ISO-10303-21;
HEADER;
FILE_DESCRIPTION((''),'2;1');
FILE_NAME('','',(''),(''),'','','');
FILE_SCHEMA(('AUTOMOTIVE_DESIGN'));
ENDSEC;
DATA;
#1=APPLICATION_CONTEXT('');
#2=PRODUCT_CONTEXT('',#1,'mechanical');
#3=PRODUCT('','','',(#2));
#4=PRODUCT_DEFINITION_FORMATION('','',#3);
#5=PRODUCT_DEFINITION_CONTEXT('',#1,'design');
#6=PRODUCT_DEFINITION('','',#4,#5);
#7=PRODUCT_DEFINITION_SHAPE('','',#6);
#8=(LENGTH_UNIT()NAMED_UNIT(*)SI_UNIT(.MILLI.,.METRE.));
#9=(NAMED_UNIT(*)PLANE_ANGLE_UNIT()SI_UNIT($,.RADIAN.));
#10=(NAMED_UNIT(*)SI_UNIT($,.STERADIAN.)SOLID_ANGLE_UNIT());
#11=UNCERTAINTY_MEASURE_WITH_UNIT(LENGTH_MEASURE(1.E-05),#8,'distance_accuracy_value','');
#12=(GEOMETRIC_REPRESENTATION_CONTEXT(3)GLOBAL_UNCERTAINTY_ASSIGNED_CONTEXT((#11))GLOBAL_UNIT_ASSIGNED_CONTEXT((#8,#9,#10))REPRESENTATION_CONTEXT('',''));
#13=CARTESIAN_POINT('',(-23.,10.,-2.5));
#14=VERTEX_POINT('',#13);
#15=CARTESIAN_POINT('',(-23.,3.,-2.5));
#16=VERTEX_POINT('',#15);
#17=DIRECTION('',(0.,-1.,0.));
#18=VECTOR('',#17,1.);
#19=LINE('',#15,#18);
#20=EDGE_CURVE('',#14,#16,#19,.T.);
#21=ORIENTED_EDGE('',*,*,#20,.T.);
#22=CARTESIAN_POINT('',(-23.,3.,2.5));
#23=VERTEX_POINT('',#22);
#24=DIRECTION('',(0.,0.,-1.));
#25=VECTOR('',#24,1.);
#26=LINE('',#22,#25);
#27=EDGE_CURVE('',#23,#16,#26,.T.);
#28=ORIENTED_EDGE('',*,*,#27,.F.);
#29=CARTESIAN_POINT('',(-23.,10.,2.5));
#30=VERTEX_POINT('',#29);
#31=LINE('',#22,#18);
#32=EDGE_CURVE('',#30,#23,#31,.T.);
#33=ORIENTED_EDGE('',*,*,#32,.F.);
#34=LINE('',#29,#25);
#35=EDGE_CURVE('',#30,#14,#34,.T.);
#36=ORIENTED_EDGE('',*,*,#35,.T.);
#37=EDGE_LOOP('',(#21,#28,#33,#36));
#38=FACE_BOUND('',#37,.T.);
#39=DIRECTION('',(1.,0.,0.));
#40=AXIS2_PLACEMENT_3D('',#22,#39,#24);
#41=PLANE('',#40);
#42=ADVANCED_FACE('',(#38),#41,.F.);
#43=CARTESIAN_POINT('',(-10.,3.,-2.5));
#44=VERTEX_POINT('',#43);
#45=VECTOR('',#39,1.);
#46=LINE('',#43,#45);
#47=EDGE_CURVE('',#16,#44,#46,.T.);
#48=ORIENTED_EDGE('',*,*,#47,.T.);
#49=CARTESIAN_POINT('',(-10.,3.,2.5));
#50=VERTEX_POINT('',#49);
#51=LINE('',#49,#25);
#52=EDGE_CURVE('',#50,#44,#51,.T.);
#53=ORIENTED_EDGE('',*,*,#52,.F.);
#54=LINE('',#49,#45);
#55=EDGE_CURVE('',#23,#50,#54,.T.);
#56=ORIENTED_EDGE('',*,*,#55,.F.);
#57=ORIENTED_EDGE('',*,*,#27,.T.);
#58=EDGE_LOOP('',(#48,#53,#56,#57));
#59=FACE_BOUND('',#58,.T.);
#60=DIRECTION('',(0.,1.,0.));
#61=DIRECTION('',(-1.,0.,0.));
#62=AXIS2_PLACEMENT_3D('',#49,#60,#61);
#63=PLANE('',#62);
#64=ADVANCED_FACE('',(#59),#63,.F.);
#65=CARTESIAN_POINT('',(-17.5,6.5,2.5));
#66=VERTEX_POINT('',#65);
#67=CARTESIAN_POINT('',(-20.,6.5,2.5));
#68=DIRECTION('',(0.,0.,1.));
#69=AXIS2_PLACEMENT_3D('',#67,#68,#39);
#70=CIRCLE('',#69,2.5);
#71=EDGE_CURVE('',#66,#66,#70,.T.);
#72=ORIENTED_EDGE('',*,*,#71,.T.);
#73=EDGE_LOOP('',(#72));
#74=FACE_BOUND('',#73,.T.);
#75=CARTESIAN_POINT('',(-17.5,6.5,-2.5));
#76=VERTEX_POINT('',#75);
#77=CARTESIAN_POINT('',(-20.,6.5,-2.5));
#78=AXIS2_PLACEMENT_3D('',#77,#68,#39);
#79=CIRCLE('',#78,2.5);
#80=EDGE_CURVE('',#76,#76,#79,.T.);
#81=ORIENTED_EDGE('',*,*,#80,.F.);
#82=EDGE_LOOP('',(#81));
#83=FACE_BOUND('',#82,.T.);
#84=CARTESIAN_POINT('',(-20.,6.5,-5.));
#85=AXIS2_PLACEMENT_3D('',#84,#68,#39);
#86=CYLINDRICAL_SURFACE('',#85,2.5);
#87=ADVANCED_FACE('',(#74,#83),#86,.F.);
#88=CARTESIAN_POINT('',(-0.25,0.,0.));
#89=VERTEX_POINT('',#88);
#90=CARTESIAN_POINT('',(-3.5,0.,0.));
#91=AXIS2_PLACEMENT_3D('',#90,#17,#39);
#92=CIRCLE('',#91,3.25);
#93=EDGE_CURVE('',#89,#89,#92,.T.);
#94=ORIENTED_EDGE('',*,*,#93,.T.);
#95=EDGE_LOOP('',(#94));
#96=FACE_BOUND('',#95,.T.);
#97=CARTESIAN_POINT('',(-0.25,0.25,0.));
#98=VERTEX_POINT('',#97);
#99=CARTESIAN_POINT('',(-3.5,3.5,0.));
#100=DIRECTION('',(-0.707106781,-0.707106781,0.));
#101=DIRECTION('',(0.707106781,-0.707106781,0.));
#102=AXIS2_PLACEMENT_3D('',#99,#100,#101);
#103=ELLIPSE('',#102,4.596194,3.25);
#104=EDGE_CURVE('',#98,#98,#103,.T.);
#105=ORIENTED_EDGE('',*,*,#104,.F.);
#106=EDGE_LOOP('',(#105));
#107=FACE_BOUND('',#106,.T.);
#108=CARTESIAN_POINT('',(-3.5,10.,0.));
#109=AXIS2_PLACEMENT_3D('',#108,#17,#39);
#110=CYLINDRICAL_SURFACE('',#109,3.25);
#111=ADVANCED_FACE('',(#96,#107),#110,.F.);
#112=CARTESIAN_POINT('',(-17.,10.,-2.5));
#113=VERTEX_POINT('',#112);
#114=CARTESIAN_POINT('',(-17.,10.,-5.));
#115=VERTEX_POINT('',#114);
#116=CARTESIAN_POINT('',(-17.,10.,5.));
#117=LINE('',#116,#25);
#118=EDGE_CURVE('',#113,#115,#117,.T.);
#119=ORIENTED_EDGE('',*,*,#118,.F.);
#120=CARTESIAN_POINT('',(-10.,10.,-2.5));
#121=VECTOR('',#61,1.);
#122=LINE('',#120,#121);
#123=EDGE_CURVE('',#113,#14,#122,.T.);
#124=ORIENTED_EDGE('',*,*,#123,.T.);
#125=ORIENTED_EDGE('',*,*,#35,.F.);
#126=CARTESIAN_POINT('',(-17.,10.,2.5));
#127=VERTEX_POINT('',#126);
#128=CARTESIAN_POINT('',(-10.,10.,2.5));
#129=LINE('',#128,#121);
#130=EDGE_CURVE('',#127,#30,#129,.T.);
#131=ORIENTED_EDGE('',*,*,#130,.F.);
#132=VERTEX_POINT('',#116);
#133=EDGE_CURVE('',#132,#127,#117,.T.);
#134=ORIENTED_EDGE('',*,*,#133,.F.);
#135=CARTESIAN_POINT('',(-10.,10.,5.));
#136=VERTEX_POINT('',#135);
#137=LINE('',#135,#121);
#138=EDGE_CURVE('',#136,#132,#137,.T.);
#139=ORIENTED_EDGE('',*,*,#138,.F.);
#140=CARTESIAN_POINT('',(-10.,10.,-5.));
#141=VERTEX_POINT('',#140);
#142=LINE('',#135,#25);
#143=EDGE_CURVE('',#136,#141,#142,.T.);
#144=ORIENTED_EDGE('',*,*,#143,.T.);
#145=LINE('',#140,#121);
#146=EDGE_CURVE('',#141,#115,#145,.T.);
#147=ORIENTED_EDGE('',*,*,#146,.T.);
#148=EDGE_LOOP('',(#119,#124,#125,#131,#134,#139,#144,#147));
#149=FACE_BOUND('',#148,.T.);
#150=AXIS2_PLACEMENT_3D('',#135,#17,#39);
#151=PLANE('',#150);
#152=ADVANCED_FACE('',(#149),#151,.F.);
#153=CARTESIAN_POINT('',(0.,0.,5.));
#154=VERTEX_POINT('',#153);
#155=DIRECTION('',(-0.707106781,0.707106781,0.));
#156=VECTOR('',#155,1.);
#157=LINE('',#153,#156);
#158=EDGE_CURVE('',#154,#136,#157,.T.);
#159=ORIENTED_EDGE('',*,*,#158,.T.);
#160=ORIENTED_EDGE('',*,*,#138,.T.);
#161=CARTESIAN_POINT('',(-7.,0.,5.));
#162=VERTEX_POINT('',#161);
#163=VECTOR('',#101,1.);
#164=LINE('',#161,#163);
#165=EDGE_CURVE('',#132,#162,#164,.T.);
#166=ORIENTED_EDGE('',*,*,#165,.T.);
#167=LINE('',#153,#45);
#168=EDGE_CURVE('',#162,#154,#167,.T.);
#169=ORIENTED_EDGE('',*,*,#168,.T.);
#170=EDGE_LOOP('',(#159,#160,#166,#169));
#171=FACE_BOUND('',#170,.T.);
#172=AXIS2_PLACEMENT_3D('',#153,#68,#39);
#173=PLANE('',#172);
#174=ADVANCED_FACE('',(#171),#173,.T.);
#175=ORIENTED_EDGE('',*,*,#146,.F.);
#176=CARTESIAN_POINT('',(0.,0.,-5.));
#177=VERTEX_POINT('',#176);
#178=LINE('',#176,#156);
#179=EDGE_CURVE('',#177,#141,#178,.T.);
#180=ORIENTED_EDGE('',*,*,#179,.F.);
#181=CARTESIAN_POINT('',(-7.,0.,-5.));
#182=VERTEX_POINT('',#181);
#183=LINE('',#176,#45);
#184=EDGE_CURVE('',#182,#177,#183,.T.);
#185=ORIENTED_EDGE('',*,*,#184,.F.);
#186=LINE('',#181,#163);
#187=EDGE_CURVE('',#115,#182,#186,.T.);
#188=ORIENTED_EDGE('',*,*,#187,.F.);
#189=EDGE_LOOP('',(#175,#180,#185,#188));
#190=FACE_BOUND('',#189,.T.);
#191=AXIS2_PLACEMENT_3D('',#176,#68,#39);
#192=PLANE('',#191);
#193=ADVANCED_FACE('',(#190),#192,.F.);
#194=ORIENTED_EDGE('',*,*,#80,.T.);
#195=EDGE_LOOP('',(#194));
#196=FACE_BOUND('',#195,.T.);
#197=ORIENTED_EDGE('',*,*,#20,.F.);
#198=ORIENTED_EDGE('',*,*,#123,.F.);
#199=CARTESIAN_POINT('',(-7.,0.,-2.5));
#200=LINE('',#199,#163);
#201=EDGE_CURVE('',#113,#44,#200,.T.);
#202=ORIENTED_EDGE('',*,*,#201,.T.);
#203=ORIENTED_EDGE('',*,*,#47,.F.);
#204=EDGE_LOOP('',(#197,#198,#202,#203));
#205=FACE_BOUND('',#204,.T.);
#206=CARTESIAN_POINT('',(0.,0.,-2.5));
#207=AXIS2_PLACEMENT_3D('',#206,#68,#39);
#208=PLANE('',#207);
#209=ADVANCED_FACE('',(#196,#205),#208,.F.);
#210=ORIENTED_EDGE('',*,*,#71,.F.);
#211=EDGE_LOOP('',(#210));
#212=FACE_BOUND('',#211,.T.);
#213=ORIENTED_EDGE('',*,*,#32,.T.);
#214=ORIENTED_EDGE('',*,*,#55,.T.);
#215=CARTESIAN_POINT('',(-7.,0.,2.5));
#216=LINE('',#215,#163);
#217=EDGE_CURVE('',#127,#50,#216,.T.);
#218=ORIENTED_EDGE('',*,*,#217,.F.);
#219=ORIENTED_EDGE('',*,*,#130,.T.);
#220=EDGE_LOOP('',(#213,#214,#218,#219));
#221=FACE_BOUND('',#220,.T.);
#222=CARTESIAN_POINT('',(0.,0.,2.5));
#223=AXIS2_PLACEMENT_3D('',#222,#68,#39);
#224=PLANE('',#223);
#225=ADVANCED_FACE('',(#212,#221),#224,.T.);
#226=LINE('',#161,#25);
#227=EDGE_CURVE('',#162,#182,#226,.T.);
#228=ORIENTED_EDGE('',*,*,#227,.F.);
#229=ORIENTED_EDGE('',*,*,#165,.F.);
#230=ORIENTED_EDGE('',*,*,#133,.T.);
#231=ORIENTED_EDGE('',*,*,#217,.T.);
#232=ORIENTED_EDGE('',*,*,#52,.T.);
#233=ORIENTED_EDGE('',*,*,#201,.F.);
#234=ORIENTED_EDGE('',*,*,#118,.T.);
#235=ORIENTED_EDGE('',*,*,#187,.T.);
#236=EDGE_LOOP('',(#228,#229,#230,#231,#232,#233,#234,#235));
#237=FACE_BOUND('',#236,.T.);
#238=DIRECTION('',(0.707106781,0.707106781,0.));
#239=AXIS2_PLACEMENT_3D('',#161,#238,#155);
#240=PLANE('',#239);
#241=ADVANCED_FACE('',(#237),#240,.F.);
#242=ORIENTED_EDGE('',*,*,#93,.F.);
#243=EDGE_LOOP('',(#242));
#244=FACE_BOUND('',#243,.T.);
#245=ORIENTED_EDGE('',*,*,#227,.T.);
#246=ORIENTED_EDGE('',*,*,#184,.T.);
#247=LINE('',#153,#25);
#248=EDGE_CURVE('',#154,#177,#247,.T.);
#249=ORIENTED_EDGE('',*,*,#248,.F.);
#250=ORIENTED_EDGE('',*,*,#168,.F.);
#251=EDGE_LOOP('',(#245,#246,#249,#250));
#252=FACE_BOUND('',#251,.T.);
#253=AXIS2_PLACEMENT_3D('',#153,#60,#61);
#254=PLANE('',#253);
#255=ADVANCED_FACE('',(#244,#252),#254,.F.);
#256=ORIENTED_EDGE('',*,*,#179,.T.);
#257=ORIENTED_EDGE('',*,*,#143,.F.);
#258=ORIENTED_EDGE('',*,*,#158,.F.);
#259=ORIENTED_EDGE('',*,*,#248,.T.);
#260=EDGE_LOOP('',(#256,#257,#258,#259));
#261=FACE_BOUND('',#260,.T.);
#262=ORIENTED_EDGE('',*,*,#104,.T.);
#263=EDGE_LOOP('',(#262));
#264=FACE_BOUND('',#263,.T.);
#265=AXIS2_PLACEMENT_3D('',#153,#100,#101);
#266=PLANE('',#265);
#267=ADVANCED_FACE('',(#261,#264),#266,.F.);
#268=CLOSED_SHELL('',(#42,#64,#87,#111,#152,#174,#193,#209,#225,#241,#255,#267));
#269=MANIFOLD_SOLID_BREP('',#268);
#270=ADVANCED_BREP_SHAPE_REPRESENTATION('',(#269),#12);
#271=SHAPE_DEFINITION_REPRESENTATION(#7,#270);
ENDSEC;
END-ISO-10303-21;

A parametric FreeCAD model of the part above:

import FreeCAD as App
import Part
import Sketcher
from FreeCAD import Vector
Q = App.Units.Quantity

doc = App.newDocument("Part")
body = doc.addObject("PartDesign::Body", "Body")

# Sketch on XY plane
sketch1 = body.newObject("Sketcher::SketchObject", "Sketch")
sketch1.AttachmentSupport = (doc.getObject("XY_Plane"), [""])
sketch1.MapMode = "FlatFace"
sketch1.addGeometry([
    Part.LineSegment(Vector(-7, 0, 0), Vector(0, 0, 0)),
    Part.LineSegment(Vector(0, 0, 0), Vector(-10, 10, 0)),
    Part.LineSegment(Vector(-10, 10, 0), Vector(-17, 10, 0)),
    Part.LineSegment(Vector(-17, 10, 0), Vector(-7, 0, 0)),
], False)
sketch1.addConstraint([
    Sketcher.Constraint("Coincident", 0, 2, 1, 1),
    Sketcher.Constraint("Coincident", 1, 2, 2, 1),
    Sketcher.Constraint("Coincident", 2, 2, 3, 1),
    Sketcher.Constraint("Coincident", 3, 2, 0, 1),
    Sketcher.Constraint("Horizontal", 0),
    Sketcher.Constraint("Horizontal", 2),
    Sketcher.Constraint("Coincident", 0, 2, -1, 1),
    Sketcher.Constraint("Parallel", 1, 3),
    Sketcher.Constraint("DistanceX", 0, 1, 0, 2, Q("7 mm")),
    Sketcher.Constraint("Angle", 1, Q("135 deg")),
    Sketcher.Constraint("DistanceX", 1, 2, -1, 1, Q("10 mm")),
])
pad1 = body.newObject("PartDesign::Pad", "Pad")
pad1.Profile = sketch1
pad1.Length = 10
pad1.Midplane = True

# Sketch on XZ plane
sketch2 = body.newObject("Sketcher::SketchObject", "Sketch001")
sketch2.AttachmentSupport = (doc.getObject("XZ_Plane"), [""])
sketch2.MapMode = "FlatFace"
sketch2.addGeometry(Part.Circle(Vector(-3.5, 0, 0), Vector(0, 0, 1), 3.25), False)
sketch2.addConstraint([
    Sketcher.Constraint("PointOnObject", 0, 3, -1),
    Sketcher.Constraint("Diameter", 0, Q("6.5 mm")),
    Sketcher.Constraint("DistanceX", 0, 3, -1, 1, Q("3.5 mm")),
])
pocket1 = body.newObject("PartDesign::Pocket", "Pocket")
pocket1.Profile = sketch2
pocket1.Type = "ThroughAll"

# Sketch on XY plane
sketch3 = body.newObject("Sketcher::SketchObject", "Sketch002")
sketch3.AttachmentSupport = (doc.getObject("XY_Plane"), [""])
sketch3.MapMode = "FlatFace"
sketch3.addGeometry([
    Part.LineSegment(Vector(-23, 10, 0), Vector(-23, 3, 0)),
    Part.LineSegment(Vector(-23, 3, 0), Vector(-10, 3, 0)),
    Part.LineSegment(Vector(-10, 3, 0), Vector(-10, 10, 0)),
    Part.LineSegment(Vector(-10, 10, 0), Vector(-23, 10, 0)),
], False)
sketch3.addConstraint([
    Sketcher.Constraint("Coincident", 0, 2, 1, 1),
    Sketcher.Constraint("Coincident", 1, 2, 2, 1),
    Sketcher.Constraint("Coincident", 2, 2, 3, 1),
    Sketcher.Constraint("Coincident", 3, 2, 0, 1),
    Sketcher.Constraint("Vertical", 0),
    Sketcher.Constraint("Horizontal", 1),
    Sketcher.Constraint("Vertical", 2),
    Sketcher.Constraint("Horizontal", 3),
    Sketcher.Constraint("DistanceX", 1, 1, 1, 2, Q("13 mm")),
    Sketcher.Constraint("DistanceY", 0, 2, 0, 1, Q("7 mm")),
    Sketcher.Constraint("DistanceX", 0, 2, -1, 1, Q("23 mm")),
    Sketcher.Constraint("DistanceY", -1, 1, 0, 2, Q("3 mm")),
])
pad2 = body.newObject("PartDesign::Pad", "Pad001")
pad2.Profile = sketch3
pad2.Length = 5
pad2.Midplane = True

# Sketch on XY plane
sketch4 = body.newObject("Sketcher::SketchObject", "Sketch003")
sketch4.AttachmentSupport = (doc.getObject("XY_Plane"), [""])
sketch4.MapMode = "FlatFace"
sketch4.AttachmentOffset = App.Placement(Vector(0, 0, 2.5), App.Rotation())
sketch4.addGeometry(Part.Circle(Vector(-20, 6.5, 0), Vector(0, 0, 1), 2.5), False)
sketch4.addConstraint([
    Sketcher.Constraint("Diameter", 0, Q("5 mm")),
    Sketcher.Constraint("DistanceX", 0, 3, -1, 1, Q("20 mm")),
    Sketcher.Constraint("DistanceY", -1, 1, 0, 3, Q("6.5 mm")),
])
pocket2 = body.newObject("PartDesign::Pocket", "Pocket001")
pocket2.Profile = sketch4
pocket2.Type = "ThroughAll"

doc.recompute()
